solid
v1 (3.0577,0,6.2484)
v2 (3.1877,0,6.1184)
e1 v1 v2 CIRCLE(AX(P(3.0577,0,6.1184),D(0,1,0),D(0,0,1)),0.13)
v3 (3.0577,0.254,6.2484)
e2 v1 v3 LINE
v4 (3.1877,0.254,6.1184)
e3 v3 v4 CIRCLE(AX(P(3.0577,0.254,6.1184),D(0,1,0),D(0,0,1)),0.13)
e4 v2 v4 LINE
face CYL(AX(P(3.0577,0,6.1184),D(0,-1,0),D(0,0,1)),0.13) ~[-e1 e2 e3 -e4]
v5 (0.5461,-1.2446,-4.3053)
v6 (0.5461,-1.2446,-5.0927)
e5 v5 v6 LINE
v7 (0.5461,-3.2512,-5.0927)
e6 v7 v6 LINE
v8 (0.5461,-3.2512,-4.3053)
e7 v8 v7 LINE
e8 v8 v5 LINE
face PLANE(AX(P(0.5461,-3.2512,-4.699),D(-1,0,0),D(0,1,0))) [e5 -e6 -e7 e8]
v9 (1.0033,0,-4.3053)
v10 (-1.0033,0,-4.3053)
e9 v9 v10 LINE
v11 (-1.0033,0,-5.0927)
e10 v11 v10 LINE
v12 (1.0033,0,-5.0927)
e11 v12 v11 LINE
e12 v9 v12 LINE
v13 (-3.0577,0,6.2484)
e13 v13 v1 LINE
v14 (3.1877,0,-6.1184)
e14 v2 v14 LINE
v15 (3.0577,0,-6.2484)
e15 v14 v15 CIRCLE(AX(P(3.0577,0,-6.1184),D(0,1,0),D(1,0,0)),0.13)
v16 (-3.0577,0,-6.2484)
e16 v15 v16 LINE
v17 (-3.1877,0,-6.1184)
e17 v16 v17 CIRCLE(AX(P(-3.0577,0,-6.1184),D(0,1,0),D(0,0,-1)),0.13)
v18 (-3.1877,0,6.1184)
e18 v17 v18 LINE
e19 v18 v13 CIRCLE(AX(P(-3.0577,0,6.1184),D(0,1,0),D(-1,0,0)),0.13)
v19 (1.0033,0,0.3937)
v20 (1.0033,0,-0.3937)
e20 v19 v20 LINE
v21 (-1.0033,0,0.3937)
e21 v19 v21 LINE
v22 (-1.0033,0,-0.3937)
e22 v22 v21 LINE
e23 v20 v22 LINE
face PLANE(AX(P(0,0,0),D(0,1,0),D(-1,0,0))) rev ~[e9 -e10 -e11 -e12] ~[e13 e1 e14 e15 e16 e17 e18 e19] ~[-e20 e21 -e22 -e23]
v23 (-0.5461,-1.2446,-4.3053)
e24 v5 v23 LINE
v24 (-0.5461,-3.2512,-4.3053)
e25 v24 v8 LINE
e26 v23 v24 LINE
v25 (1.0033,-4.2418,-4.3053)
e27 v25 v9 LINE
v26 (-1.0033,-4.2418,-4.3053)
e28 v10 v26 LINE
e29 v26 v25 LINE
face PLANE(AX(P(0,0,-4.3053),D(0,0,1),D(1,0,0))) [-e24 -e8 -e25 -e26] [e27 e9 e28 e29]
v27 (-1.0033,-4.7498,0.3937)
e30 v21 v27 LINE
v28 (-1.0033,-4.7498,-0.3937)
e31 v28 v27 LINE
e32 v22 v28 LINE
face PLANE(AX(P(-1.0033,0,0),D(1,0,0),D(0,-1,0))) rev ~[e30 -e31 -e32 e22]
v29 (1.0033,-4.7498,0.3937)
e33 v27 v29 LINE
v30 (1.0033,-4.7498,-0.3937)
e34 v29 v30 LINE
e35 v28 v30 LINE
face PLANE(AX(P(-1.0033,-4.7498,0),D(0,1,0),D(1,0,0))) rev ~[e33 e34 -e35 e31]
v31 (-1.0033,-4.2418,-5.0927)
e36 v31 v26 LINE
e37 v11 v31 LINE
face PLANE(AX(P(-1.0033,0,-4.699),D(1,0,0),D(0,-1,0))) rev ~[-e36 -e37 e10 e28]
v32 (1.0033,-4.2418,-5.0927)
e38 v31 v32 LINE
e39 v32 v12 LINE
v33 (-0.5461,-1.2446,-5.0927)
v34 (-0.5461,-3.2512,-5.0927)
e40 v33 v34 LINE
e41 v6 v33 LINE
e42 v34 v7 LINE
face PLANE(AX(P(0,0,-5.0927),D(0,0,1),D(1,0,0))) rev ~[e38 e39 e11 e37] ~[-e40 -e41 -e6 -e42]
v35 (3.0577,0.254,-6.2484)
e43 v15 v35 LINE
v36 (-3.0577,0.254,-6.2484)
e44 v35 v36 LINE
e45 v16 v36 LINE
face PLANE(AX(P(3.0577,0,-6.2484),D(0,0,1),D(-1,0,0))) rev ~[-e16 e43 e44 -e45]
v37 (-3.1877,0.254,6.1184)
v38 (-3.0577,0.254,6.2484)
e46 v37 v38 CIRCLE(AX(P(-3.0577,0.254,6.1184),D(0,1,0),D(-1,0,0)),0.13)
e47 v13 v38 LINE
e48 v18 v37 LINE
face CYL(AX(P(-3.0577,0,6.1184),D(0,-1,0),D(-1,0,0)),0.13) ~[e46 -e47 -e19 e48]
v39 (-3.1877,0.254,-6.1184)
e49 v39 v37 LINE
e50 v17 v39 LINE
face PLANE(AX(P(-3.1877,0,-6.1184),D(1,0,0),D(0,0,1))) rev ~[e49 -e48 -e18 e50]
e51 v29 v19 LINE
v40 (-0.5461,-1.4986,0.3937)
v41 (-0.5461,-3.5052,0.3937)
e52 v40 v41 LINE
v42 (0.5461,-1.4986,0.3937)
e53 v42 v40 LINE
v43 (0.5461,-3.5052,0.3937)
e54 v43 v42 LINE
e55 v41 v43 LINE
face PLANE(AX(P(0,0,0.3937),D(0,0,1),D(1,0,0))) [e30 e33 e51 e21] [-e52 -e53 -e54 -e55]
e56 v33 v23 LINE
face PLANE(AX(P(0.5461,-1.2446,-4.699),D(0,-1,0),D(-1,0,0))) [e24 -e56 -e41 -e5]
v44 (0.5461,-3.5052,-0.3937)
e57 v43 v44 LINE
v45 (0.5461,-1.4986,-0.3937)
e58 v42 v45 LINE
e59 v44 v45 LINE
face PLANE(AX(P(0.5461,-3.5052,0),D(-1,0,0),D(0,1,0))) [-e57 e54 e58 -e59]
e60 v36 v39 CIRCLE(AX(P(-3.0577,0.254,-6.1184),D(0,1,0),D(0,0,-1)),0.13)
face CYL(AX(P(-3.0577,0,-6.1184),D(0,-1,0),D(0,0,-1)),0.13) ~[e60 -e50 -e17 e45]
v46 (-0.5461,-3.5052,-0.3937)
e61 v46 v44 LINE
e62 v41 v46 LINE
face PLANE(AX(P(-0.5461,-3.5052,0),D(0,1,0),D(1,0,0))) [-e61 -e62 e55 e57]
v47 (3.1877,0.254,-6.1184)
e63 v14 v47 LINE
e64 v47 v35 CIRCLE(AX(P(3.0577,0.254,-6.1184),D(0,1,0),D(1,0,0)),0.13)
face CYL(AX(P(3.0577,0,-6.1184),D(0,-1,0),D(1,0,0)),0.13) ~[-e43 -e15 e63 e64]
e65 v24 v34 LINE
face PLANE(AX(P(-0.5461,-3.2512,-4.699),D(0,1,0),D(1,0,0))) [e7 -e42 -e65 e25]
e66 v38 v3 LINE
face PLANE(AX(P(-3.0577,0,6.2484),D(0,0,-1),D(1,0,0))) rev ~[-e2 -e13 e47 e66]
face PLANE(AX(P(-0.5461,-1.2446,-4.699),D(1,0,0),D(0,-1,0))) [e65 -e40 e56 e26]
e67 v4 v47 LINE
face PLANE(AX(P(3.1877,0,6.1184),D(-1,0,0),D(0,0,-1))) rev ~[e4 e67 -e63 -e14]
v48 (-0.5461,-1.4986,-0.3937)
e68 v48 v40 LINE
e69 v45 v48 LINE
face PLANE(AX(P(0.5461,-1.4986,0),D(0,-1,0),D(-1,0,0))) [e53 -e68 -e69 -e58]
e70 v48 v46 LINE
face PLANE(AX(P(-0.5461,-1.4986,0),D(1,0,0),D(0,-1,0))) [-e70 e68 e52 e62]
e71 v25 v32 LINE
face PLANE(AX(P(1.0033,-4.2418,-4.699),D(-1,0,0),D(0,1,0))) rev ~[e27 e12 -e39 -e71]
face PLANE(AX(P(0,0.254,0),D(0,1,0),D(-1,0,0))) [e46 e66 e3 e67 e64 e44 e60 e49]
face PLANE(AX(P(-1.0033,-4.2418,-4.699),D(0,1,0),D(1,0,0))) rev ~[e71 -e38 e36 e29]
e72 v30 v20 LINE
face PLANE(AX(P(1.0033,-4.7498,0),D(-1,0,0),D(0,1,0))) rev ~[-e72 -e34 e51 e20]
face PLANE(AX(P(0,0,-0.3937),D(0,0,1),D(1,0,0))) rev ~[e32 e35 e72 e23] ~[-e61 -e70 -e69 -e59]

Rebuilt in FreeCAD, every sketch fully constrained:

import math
import FreeCAD as App
import Part
import Sketcher
Q = App.Units.Quantity

doc = App.newDocument("Part")
params = doc.addObject("Spreadsheet::Sheet", "Params")
for row, (alias, value) in enumerate([
    ("pad1_length", "0.01 in"),
    ("sketch2_width", "0.079 in"),
    ("sketch2_width2", "0.043 in"),
    ("sketch2_height", "0.167 in"),
    ("pad2_length", "0.031 in"),
    ("sketch3_width", "0.079 in"),
    ("sketch3_width2", "0.043 in"),
    ("sketch3_height", "0.187 in"),
    ("pad3_length", "0.031 in"),
], start=1):
    params.set(f"A{row}", alias)
    params.set(f"B{row}", "=" + value)
    params.setAlias(f"B{row}", alias)

body = doc.addObject("PartDesign::Body", "Body")

sketch1 = body.newObject("Sketcher::SketchObject", "Sketch")
sketch1.AttachmentSupport = (doc.getObject("XZ_Plane"), [""])
sketch1.MapMode = "FlatFace"
sketch1.addGeometry([
    Part.ArcOfCircle(Part.Circle(App.Vector(-3.06, -6.12, 0), App.Vector(0, 0, 1), 0.13), math.radians(180), math.radians(270)),
    Part.LineSegment(App.Vector(-3.19, -6.12, 0), App.Vector(-3.19, 6.12, 0)),
    Part.ArcOfCircle(Part.Circle(App.Vector(-3.06, 6.12, 0), App.Vector(0, 0, 1), 0.13), math.radians(90), math.radians(180)),
    Part.LineSegment(App.Vector(-3.06, 6.25, 0), App.Vector(3.06, 6.25, 0)),
    Part.ArcOfCircle(Part.Circle(App.Vector(3.06, 6.12, 0), App.Vector(0, 0, 1), 0.13), math.radians(0), math.radians(90)),
    Part.LineSegment(App.Vector(3.19, 6.12, 0), App.Vector(3.19, -6.12, 0)),
    Part.ArcOfCircle(Part.Circle(App.Vector(3.06, -6.12, 0), App.Vector(0, 0, 1), 0.13), math.radians(-90), math.radians(0)),
    Part.LineSegment(App.Vector(3.06, -6.25, 0), App.Vector(-3.06, -6.25, 0)),
], False)
sketch1.addConstraint([
    Sketcher.Constraint("Tangent", 0, 1, 1, 1),
    Sketcher.Constraint("Tangent", 1, 2, 2, 2),
    Sketcher.Constraint("Tangent", 2, 1, 3, 1),
    Sketcher.Constraint("Tangent", 3, 2, 4, 2),
    Sketcher.Constraint("Tangent", 4, 1, 5, 1),
    Sketcher.Constraint("Tangent", 5, 2, 6, 2),
    Sketcher.Constraint("Tangent", 6, 1, 7, 1),
    Sketcher.Constraint("Tangent", 7, 2, 0, 2),
    Sketcher.Constraint("Vertical", 1),
    Sketcher.Constraint("Horizontal", 3),
    Sketcher.Constraint("Vertical", 5),
    Sketcher.Constraint("Horizontal", 7),
    Sketcher.Constraint("Equal", 0, 2),
    Sketcher.Constraint("Equal", 2, 4),
    Sketcher.Constraint("Equal", 4, 6),
    Sketcher.Constraint("Symmetric", 0, 3, 4, 3, -1, 1),
    Sketcher.Constraint("Radius", 0, Q("0.13 mm")),
    Sketcher.Constraint("DistanceY", -1, 1, 2, 1, Q("0.246 in")),
    Sketcher.Constraint("DistanceX", 1, 2, 4, 1, Q("0.251 in")),
])
pad1 = body.newObject("PartDesign::Pad", "Pad")
pad1.Profile = sketch1
pad1.setExpression("Length", "Params.pad1_length")
pad1.Reversed = True

sketch2 = body.newObject("Sketcher::SketchObject", "Sketch001")
sketch2.AttachmentSupport = (doc.getObject("XY_Plane"), [""])
sketch2.MapMode = "FlatFace"
sketch2.AttachmentOffset = App.Placement(App.Vector(0, 0, -0.185 * 25.4), App.Rotation())
sketch2.addGeometry([
    Part.LineSegment(App.Vector(1, 0, 0), App.Vector(-1, 0, 0)),
    Part.LineSegment(App.Vector(-1, 0, 0), App.Vector(-1, -4.2, 0)),
    Part.LineSegment(App.Vector(-1, -4.2, 0), App.Vector(1, -4.2, 0)),
    Part.LineSegment(App.Vector(1, -4.2, 0), App.Vector(1, 0, 0)),
    Part.LineSegment(App.Vector(-0.5, -3.3, 0), App.Vector(-0.5, -1.2, 0)),
    Part.LineSegment(App.Vector(-0.5, -1.2, 0), App.Vector(0.5, -1.2, 0)),
    Part.LineSegment(App.Vector(0.5, -1.2, 0), App.Vector(0.5, -3.3, 0)),
    Part.LineSegment(App.Vector(0.5, -3.3, 0), App.Vector(-0.5, -3.3, 0)),
], False)
sketch2.addConstraint([
    Sketcher.Constraint("Coincident", 0, 2, 1, 1),
    Sketcher.Constraint("Coincident", 1, 2, 2, 1),
    Sketcher.Constraint("Coincident", 2, 2, 3, 1),
    Sketcher.Constraint("Coincident", 3, 2, 0, 1),
    Sketcher.Constraint("Coincident", 4, 2, 5, 1),
    Sketcher.Constraint("Coincident", 5, 2, 6, 1),
    Sketcher.Constraint("Coincident", 6, 2, 7, 1),
    Sketcher.Constraint("Coincident", 7, 2, 4, 1),
    Sketcher.Constraint("Horizontal", 0),
    Sketcher.Constraint("Vertical", 1),
    Sketcher.Constraint("Horizontal", 2),
    Sketcher.Constraint("Vertical", 3),
    Sketcher.Constraint("Vertical", 4),
    Sketcher.Constraint("Horizontal", 5),
    Sketcher.Constraint("Vertical", 6),
    Sketcher.Constraint("Horizontal", 7),
    Sketcher.Constraint("Symmetric", 0, 2, 3, 2, -1, 1),
    Sketcher.Constraint("Equal", 2, 4),
    Sketcher.Constraint("DistanceX", 0, 2, 0, 1, Q("0.079 in")),
    Sketcher.Constraint("DistanceX", 5, 1, 5, 2, Q("0.043 in")),
    Sketcher.Constraint("DistanceY", 1, 2, 1, 1, Q("0.167 in")),
    Sketcher.Constraint("DistanceY", 4, 2, -1, 1, Q("0.049 in")),
    Sketcher.Constraint("DistanceX", 0, 2, 4, 2, Q("0.018 in")),
])
sketch2.setExpression("Constraints[18]", "Params.sketch2_width")
sketch2.setExpression("Constraints[19]", "Params.sketch2_width2")
sketch2.setExpression("Constraints[20]", "Params.sketch2_height")
pad2 = body.newObject("PartDesign::Pad", "Pad001")
pad2.Profile = sketch2
pad2.setExpression("Length", "Params.pad2_length")
pad2.Midplane = True

sketch3 = body.newObject("Sketcher::SketchObject", "Sketch002")
sketch3.AttachmentSupport = (doc.getObject("XY_Plane"), [""])
sketch3.MapMode = "FlatFace"
sketch3.addGeometry([
    Part.LineSegment(App.Vector(1, 0, 0), App.Vector(-1, 0, 0)),
    Part.LineSegment(App.Vector(-1, 0, 0), App.Vector(-1, -4.7, 0)),
    Part.LineSegment(App.Vector(-1, -4.7, 0), App.Vector(1, -4.7, 0)),
    Part.LineSegment(App.Vector(1, -4.7, 0), App.Vector(1, 0, 0)),
    Part.LineSegment(App.Vector(-0.5, -3.5, 0), App.Vector(-0.5, -1.5, 0)),
    Part.LineSegment(App.Vector(-0.5, -1.5, 0), App.Vector(0.5, -1.5, 0)),
    Part.LineSegment(App.Vector(0.5, -1.5, 0), App.Vector(0.5, -3.5, 0)),
    Part.LineSegment(App.Vector(0.5, -3.5, 0), App.Vector(-0.5, -3.5, 0)),
], False)
sketch3.addConstraint([
    Sketcher.Constraint("Coincident", 0, 2, 1, 1),
    Sketcher.Constraint("Coincident", 1, 2, 2, 1),
    Sketcher.Constraint("Coincident", 2, 2, 3, 1),
    Sketcher.Constraint("Coincident", 3, 2, 0, 1),
    Sketcher.Constraint("Coincident", 4, 2, 5, 1),
    Sketcher.Constraint("Coincident", 5, 2, 6, 1),
    Sketcher.Constraint("Coincident", 6, 2, 7, 1),
    Sketcher.Constraint("Coincident", 7, 2, 4, 1),
    Sketcher.Constraint("Horizontal", 0),
    Sketcher.Constraint("Vertical", 1),
    Sketcher.Constraint("Horizontal", 2),
    Sketcher.Constraint("Vertical", 3),
    Sketcher.Constraint("Vertical", 4),
    Sketcher.Constraint("Horizontal", 5),
    Sketcher.Constraint("Vertical", 6),
    Sketcher.Constraint("Horizontal", 7),
    Sketcher.Constraint("Symmetric", 0, 2, 3, 2, -1, 1),
    Sketcher.Constraint("Equal", 2, 4),
    Sketcher.Constraint("DistanceX", 0, 2, 0, 1, Q("0.079 in")),
    Sketcher.Constraint("DistanceX", 5, 1, 5, 2, Q("0.043 in")),
    Sketcher.Constraint("DistanceY", 1, 2, 1, 1, Q("0.187 in")),
    Sketcher.Constraint("DistanceY", 4, 2, -1, 1, Q("0.059 in")),
    Sketcher.Constraint("DistanceX", 0, 2, 4, 2, Q("0.018 in")),
])
sketch3.setExpression("Constraints[18]", "Params.sketch3_width")
sketch3.setExpression("Constraints[19]", "Params.sketch3_width2")
sketch3.setExpression("Constraints[20]", "Params.sketch3_height")
pad3 = body.newObject("PartDesign::Pad", "Pad002")
pad3.Profile = sketch3
pad3.setExpression("Length", "Params.pad3_length")
pad3.Midplane = True

doc.recompute()
